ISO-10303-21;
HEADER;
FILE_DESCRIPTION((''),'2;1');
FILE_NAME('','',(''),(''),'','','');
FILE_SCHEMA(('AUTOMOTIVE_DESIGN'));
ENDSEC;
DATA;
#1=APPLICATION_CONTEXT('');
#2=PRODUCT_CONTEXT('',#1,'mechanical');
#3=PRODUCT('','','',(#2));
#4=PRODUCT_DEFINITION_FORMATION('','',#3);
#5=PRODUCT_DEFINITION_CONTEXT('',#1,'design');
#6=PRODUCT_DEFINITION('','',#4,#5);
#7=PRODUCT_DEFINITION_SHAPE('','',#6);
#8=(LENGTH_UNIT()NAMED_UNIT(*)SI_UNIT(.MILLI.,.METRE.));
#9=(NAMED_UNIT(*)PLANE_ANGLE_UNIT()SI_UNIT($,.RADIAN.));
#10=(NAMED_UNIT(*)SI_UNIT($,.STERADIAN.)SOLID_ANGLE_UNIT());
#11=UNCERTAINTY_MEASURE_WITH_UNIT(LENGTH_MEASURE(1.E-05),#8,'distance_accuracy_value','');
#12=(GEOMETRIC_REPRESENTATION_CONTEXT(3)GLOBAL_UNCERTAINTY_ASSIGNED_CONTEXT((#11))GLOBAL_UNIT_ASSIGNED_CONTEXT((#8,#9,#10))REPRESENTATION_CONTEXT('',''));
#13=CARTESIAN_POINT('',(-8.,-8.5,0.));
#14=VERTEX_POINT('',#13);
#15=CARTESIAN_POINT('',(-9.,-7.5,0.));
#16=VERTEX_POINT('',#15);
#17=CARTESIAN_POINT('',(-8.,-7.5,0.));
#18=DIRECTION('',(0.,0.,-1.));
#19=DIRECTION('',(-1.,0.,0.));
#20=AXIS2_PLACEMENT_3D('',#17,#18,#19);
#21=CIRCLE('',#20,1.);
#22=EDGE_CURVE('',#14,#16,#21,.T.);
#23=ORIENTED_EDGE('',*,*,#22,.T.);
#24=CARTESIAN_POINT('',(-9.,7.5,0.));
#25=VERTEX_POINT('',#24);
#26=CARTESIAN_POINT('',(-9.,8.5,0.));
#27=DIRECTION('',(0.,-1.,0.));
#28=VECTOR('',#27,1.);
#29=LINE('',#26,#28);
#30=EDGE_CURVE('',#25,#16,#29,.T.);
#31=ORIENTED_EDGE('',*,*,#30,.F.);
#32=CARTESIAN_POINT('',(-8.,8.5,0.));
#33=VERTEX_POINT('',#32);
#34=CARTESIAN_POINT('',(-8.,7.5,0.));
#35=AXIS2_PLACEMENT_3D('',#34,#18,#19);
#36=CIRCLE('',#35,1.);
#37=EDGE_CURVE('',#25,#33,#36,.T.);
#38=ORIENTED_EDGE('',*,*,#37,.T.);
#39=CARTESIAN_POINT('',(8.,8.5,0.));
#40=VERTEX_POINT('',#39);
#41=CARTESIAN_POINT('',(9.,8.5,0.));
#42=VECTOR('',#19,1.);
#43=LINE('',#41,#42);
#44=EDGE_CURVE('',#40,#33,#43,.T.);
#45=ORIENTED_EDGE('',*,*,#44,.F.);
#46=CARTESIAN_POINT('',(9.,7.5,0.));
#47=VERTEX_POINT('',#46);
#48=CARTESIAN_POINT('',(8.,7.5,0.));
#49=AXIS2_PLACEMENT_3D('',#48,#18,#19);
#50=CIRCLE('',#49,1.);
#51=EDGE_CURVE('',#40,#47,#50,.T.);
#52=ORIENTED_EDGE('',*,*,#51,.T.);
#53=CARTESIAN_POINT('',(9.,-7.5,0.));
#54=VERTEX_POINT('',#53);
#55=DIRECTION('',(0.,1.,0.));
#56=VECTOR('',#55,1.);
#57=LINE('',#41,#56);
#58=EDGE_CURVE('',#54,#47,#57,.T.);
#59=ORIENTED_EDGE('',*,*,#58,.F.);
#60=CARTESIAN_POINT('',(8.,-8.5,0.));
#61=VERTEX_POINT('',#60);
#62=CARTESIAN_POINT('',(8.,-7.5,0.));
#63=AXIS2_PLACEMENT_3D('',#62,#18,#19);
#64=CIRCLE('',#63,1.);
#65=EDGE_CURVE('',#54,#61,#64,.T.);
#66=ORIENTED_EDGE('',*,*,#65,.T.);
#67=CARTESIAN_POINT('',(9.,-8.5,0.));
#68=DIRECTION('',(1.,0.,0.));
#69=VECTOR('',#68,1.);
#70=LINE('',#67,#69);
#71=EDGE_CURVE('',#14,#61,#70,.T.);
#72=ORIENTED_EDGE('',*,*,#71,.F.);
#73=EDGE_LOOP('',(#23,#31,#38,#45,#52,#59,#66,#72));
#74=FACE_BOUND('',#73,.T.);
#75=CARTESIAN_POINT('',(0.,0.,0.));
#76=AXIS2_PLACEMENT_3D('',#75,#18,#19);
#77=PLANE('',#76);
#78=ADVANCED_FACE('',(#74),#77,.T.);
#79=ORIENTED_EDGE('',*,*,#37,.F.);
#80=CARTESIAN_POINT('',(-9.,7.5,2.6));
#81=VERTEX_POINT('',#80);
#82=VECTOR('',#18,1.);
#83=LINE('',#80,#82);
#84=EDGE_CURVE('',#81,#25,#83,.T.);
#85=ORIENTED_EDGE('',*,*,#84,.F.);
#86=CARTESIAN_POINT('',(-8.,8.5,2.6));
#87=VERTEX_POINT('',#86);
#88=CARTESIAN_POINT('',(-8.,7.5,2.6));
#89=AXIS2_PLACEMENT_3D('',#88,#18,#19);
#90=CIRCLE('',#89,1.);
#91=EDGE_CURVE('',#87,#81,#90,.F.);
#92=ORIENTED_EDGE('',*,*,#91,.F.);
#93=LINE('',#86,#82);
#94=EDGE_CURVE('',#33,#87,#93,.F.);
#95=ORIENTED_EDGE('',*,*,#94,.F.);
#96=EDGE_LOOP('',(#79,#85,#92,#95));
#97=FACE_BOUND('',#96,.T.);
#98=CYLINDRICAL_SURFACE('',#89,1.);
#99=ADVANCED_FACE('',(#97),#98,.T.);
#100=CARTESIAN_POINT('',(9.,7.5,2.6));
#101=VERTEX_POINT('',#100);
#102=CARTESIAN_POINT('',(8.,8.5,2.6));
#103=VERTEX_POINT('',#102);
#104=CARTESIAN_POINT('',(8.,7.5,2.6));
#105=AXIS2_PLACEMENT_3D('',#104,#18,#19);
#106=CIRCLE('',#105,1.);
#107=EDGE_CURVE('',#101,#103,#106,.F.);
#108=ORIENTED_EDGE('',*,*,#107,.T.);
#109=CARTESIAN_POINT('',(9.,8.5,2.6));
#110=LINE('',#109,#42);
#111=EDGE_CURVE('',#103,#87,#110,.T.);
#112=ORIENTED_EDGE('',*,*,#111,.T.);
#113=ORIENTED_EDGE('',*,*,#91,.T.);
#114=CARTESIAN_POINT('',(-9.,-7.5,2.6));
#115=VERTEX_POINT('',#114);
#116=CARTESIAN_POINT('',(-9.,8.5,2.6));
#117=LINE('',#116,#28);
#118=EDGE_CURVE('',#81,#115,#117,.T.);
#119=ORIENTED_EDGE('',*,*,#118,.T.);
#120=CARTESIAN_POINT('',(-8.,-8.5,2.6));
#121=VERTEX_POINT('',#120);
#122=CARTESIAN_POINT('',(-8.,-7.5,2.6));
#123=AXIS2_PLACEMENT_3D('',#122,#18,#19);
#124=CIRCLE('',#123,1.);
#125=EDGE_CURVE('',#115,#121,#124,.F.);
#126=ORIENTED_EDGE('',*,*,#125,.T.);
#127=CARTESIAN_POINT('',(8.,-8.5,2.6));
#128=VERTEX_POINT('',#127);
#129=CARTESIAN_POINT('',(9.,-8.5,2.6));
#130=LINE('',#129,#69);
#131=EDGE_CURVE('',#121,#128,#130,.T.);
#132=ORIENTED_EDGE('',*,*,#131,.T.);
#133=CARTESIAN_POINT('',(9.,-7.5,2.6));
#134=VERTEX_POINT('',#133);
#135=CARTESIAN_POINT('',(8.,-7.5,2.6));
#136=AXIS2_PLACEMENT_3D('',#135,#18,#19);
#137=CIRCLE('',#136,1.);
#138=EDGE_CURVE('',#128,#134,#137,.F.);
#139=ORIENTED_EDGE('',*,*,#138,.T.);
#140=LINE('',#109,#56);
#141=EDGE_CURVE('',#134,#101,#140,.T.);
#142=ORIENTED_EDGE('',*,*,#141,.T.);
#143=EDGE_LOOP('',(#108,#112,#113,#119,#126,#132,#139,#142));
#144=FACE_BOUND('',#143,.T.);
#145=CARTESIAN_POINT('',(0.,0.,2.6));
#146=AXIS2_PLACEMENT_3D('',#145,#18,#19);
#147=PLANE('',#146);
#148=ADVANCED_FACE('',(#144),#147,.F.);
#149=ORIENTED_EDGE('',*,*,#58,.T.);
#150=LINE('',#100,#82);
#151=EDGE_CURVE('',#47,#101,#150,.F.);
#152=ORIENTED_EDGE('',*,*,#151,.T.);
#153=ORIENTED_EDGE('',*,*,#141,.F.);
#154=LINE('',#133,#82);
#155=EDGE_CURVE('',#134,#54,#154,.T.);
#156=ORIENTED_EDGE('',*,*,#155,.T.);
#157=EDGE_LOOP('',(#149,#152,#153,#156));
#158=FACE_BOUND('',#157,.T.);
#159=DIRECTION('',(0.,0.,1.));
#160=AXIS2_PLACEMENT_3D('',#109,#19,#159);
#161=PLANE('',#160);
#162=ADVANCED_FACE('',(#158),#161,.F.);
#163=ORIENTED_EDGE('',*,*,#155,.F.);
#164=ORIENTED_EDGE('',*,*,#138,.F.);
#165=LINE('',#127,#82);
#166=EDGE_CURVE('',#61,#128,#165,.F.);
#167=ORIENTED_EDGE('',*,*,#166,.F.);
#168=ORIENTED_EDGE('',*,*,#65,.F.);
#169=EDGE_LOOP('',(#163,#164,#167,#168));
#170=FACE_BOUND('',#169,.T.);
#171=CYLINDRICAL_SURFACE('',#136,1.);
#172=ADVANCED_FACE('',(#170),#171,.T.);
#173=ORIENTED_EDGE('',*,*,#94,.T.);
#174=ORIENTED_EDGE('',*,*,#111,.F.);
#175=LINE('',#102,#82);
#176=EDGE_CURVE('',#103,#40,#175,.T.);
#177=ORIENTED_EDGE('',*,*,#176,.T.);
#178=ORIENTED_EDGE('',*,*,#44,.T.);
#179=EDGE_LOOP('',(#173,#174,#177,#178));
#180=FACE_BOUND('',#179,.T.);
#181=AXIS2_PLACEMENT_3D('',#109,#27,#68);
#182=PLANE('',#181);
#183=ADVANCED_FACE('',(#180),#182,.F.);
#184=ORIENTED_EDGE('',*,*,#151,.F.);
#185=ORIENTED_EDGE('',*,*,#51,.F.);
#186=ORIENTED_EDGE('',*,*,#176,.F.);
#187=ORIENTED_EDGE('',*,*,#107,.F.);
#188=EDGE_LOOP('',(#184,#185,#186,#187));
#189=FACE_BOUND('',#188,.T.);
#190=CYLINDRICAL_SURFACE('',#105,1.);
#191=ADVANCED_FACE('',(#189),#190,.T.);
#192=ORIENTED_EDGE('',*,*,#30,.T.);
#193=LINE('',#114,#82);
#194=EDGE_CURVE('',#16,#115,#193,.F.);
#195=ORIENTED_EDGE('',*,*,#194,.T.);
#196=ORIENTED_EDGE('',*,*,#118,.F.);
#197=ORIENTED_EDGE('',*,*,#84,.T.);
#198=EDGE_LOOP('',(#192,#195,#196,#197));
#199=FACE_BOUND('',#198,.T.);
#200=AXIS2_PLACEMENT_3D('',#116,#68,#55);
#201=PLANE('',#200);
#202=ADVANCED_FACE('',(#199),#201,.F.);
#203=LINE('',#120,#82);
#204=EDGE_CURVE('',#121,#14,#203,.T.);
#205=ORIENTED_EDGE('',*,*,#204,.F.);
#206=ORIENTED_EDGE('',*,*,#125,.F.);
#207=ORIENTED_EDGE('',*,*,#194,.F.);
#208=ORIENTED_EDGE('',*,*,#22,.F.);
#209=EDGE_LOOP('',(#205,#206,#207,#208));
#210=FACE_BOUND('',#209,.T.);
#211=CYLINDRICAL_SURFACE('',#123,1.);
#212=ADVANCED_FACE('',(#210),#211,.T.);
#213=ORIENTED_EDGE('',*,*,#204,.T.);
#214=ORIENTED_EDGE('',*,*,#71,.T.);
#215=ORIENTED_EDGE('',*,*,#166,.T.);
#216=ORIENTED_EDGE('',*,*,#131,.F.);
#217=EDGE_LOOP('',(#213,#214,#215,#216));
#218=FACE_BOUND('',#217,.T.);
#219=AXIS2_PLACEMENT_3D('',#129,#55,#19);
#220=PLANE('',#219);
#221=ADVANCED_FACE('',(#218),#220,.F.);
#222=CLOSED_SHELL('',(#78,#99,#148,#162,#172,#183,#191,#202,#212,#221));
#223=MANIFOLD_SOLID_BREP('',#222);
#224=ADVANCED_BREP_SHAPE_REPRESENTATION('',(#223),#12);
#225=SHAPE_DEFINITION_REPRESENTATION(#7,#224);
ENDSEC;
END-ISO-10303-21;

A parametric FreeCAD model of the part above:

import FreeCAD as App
import Part
import Sketcher


def edges_at(feature, points):
    """Names of the edges that pass closest to the given points."""
    edges = feature.Shape.Edges
    near = lambda p: min(range(len(edges)), key=lambda i: edges[i].distToShape(Part.Vertex(*p))[0])
    return sorted({f"Edge{near(p) + 1}" for p in points})

doc = App.newDocument("Part")
body = doc.addObject("PartDesign::Body", "Body")

sketch1 = body.newObject("Sketcher::SketchObject", "Sketch")
sketch1.AttachmentSupport = (doc.getObject("XY_Plane"), [""])
sketch1.MapMode = "FlatFace"
sketch1.addGeometry([
    Part.LineSegment(App.Vector(-9, 8.5, 0), App.Vector(-9, -8.5, 0)),
    Part.LineSegment(App.Vector(-9, -8.5, 0), App.Vector(9, -8.5, 0)),
    Part.LineSegment(App.Vector(9, -8.5, 0), App.Vector(9, 8.5, 0)),
    Part.LineSegment(App.Vector(9, 8.5, 0), App.Vector(-9, 8.5, 0)),
], False)
sketch1.addConstraint([
    Sketcher.Constraint("Coincident", 0, 2, 1, 1),
    Sketcher.Constraint("Coincident", 1, 2, 2, 1),
    Sketcher.Constraint("Coincident", 2, 2, 3, 1),
    Sketcher.Constraint("Coincident", 3, 2, 0, 1),
    Sketcher.Constraint("Vertical", 0),
    Sketcher.Constraint("Horizontal", 1),
    Sketcher.Constraint("Vertical", 2),
    Sketcher.Constraint("Horizontal", 3),
    Sketcher.Constraint("Symmetric", 0, 2, 2, 2, -1, 1),
    Sketcher.Constraint("DistanceX", 1, 1, 1, 2, 18.0),
    Sketcher.Constraint("DistanceY", 0, 2, 0, 1, 17.0),
])
pad1 = body.newObject("PartDesign::Pad", "Pad")
pad1.Profile = sketch1
pad1.Length = 2.6
doc.recompute()

fillet = body.newObject("PartDesign::Fillet", "Fillet")
fillet.Base = (pad1, edges_at(pad1, [
    (-9, 8.5, 1.3),
    (9, 8.5, 1.3),
    (9, -8.5, 1.3),
    (-9, -8.5, 1.3),
]))
fillet.Radius = 1

doc.recompute()
